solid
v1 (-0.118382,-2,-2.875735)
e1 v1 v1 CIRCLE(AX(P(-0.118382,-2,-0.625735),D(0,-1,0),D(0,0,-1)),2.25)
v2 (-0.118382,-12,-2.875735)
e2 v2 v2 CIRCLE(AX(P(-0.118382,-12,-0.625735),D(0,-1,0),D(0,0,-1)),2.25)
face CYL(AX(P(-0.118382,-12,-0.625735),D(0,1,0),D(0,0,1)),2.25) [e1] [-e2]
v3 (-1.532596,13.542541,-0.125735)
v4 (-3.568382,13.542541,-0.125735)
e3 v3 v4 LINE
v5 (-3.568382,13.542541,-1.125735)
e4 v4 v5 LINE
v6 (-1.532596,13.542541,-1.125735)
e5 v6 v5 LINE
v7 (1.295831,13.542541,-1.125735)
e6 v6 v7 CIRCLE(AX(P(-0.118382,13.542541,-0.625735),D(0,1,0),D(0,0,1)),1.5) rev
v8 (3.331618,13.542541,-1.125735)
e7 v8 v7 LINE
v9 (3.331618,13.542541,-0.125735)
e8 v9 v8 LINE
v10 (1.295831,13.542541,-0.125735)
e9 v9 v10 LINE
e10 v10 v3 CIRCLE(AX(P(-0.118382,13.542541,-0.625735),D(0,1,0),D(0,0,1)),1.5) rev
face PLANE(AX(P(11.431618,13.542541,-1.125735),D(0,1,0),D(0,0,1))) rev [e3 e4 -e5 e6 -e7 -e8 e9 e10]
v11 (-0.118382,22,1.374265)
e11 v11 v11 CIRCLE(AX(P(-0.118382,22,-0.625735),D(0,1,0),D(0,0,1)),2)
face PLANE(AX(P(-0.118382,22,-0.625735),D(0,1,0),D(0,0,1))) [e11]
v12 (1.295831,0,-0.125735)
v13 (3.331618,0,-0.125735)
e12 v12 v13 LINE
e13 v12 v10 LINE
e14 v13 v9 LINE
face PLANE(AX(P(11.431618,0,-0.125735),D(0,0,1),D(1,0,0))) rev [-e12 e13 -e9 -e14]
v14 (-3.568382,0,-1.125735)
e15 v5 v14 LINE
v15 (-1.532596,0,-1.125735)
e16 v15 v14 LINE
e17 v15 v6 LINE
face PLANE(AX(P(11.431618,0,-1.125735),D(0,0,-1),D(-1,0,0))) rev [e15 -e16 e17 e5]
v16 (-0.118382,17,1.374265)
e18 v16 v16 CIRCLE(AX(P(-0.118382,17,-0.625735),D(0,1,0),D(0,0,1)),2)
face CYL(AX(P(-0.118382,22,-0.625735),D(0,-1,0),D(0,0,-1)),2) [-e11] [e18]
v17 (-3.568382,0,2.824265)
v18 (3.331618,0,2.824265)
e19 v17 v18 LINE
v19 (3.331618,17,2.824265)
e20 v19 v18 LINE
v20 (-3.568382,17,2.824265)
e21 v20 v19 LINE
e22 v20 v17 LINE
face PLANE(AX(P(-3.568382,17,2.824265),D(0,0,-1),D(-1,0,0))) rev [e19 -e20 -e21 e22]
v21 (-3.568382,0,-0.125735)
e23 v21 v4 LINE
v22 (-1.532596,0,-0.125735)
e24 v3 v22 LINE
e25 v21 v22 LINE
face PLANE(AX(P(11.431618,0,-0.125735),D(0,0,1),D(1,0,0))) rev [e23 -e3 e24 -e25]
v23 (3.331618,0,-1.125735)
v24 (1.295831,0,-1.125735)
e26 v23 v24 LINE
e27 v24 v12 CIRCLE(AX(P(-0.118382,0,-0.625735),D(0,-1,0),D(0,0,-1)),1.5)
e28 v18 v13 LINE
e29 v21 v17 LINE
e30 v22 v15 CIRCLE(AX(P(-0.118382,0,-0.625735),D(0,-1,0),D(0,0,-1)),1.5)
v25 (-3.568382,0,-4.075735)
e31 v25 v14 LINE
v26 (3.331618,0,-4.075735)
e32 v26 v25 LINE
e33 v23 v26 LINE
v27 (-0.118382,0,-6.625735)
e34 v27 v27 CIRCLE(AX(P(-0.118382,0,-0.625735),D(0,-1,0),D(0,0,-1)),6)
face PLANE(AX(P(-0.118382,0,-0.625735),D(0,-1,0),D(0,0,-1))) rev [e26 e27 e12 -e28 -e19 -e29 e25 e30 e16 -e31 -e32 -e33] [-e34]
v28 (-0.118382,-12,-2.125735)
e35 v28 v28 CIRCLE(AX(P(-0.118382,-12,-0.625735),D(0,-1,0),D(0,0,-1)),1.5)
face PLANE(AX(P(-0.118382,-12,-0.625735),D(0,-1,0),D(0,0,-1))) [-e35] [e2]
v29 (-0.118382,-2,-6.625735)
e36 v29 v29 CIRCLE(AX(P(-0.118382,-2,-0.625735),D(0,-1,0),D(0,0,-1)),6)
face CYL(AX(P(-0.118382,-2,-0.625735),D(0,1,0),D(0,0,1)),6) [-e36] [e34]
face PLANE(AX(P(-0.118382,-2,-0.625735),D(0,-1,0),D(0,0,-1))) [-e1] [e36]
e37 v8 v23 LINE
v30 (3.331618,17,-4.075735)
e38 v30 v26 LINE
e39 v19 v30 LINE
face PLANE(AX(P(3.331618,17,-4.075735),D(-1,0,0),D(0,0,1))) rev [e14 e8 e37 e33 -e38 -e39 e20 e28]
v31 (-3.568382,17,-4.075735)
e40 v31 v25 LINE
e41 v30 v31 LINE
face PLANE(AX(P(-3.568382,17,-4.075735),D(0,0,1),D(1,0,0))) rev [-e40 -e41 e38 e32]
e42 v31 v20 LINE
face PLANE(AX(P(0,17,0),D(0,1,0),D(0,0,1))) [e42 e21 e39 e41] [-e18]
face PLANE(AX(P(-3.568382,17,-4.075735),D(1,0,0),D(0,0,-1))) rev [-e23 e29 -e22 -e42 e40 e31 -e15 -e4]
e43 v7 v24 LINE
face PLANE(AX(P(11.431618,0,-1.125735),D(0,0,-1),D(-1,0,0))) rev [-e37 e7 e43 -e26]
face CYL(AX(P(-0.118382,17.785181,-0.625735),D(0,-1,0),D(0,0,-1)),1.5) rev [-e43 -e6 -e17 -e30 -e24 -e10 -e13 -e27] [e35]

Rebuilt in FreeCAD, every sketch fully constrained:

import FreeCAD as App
import Part
import Sketcher
from FreeCAD import Vector
Q = App.Units.Quantity

doc = App.newDocument("Part")
body = doc.addObject("PartDesign::Body", "Body")

# Sketch on XZ plane
sketch1 = body.newObject("Sketcher::SketchObject", "Sketch")
sketch1.AttachmentSupport = (doc.getObject("XZ_Plane"), [""])
sketch1.MapMode = "FlatFace"
sketch1.addGeometry(Part.LineSegment(Vector(-4, -4, 0), Vector(-4, 3, 0)), False)
sketch1.addGeometry(Part.LineSegment(Vector(-4, 3, 0), Vector(3, 3, 0)), False)
sketch1.addGeometry(Part.LineSegment(Vector(3, 3, 0), Vector(3, -4, 0)), False)
sketch1.addGeometry(Part.LineSegment(Vector(3, -4, 0), Vector(-4, -4, 0)), False)
sketch1.addConstraint(Sketcher.Constraint("Coincident", 0, 2, 1, 1))
sketch1.addConstraint(Sketcher.Constraint("Coincident", 1, 2, 2, 1))
sketch1.addConstraint(Sketcher.Constraint("Coincident", 2, 2, 3, 1))
sketch1.addConstraint(Sketcher.Constraint("Coincident", 3, 2, 0, 1))
sketch1.addConstraint(Sketcher.Constraint("Vertical", 0))
sketch1.addConstraint(Sketcher.Constraint("Horizontal", 1))
sketch1.addConstraint(Sketcher.Constraint("Vertical", 2))
sketch1.addConstraint(Sketcher.Constraint("Horizontal", 3))
sketch1.addConstraint(Sketcher.Constraint("Equal", 3, 0))
sketch1.addConstraint(Sketcher.Constraint("DistanceX", 1, 1, 1, 2, Q("6.9 mm")))
sketch1.addConstraint(Sketcher.Constraint("DistanceX", 0, 2, -1, 1, Q("3.568382 mm")))
sketch1.addConstraint(Sketcher.Constraint("DistanceY", -1, 1, 0, 2, Q("2.824265 mm")))
pad1 = body.newObject("PartDesign::Pad", "Pad")
pad1.Profile = sketch1
pad1.Length = 17
pad1.Reversed = True

# Sketch on XZ plane
sketch2 = body.newObject("Sketcher::SketchObject", "Sketch001")
sketch2.AttachmentSupport = (doc.getObject("XZ_Plane"), [""])
sketch2.MapMode = "FlatFace"
sketch2.AttachmentOffset = App.Placement(Vector(0, 0, -17), App.Rotation())
sketch2.addGeometry(Part.Circle(Vector(-0.1, -0.6, 0), Vector(0, 0, 1), 2), False)
sketch2.addConstraint(Sketcher.Constraint("Diameter", 0, Q("4 mm")))
sketch2.addConstraint(Sketcher.Constraint("DistanceX", 0, 3, -1, 1, Q("0.118382 mm")))
sketch2.addConstraint(Sketcher.Constraint("DistanceY", 0, 3, -1, 1, Q("0.625735 mm")))
pad2 = body.newObject("PartDesign::Pad", "Pad001")
pad2.Profile = sketch2
pad2.Length = 5
pad2.Reversed = True

# Sketch on YZ plane
sketch3 = body.newObject("Sketcher::SketchObject", "Sketch002")
sketch3.AttachmentSupport = (doc.getObject("YZ_Plane"), [""])
sketch3.MapMode = "FlatFace"
sketch3.AttachmentOffset = App.Placement(Vector(0, 0, -3.568382), App.Rotation())
sketch3.addGeometry(Part.LineSegment(Vector(13.5, -1.1, 0), Vector(0, -1.1, 0)), False)
sketch3.addGeometry(Part.LineSegment(Vector(0, -1.1, 0), Vector(0, -0.1, 0)), False)
sketch3.addGeometry(Part.LineSegment(Vector(0, -0.1, 0), Vector(13.5, -0.1, 0)), False)
sketch3.addGeometry(Part.LineSegment(Vector(13.5, -0.1, 0), Vector(13.5, -1.1, 0)), False)
sketch3.addConstraint(Sketcher.Constraint("Coincident", 0, 2, 1, 1))
sketch3.addConstraint(Sketcher.Constraint("Coincident", 1, 2, 2, 1))
sketch3.addConstraint(Sketcher.Constraint("Coincident", 2, 2, 3, 1))
sketch3.addConstraint(Sketcher.Constraint("Coincident", 3, 2, 0, 1))
sketch3.addConstraint(Sketcher.Constraint("Horizontal", 0))
sketch3.addConstraint(Sketcher.Constraint("Vertical", 1))
sketch3.addConstraint(Sketcher.Constraint("Horizontal", 2))
sketch3.addConstraint(Sketcher.Constraint("Vertical", 3))
sketch3.addConstraint(Sketcher.Constraint("PointOnObject", 0, 2, -2))
sketch3.addConstraint(Sketcher.Constraint("DistanceY", 1, 1, 1, 2, Q("1 mm")))
sketch3.addConstraint(Sketcher.Constraint("DistanceX", 0, 2, 0, 1, Q("13.542541 mm")))
sketch3.addConstraint(Sketcher.Constraint("DistanceY", 0, 2, -1, 1, Q("1.125735 mm")))
pocket1 = body.newObject("PartDesign::Pocket", "Pocket")
pocket1.Profile = sketch3
pocket1.Length = 15
pocket1.Reversed = True

# Sketch on XZ plane
sketch4 = body.newObject("Sketcher::SketchObject", "Sketch003")
sketch4.AttachmentSupport = (doc.getObject("XZ_Plane"), [""])
sketch4.MapMode = "FlatFace"
sketch4.addGeometry(Part.Circle(Vector(0, -1, 0), Vector(0, 0, 1), 6), False)
sketch4.addConstraint(Sketcher.Constraint("Diameter", 0, Q("12 mm")))
sketch4.addConstraint(Sketcher.Constraint("DistanceX", 0, 3, -1, 1, Q("0.118382 mm")))
sketch4.addConstraint(Sketcher.Constraint("DistanceY", 0, 3, -1, 1, Q("0.625735 mm")))
pad3 = body.newObject("PartDesign::Pad", "Pad002")
pad3.Profile = sketch4
pad3.Length = 2

# Sketch on XZ plane
sketch5 = body.newObject("Sketcher::SketchObject", "Sketch004")
sketch5.AttachmentSupport = (doc.getObject("XZ_Plane"), [""])
sketch5.MapMode = "FlatFace"
sketch5.AttachmentOffset = App.Placement(Vector(0, 0, 2), App.Rotation())
sketch5.addGeometry(Part.Circle(Vector(-0.1, -0.6, 0), Vector(0, 0, 1), 2.2), False)
sketch5.addConstraint(Sketcher.Constraint("Diameter", 0, Q("4.5 mm")))
sketch5.addConstraint(Sketcher.Constraint("DistanceX", 0, 3, -1, 1, Q("0.118382 mm")))
sketch5.addConstraint(Sketcher.Constraint("DistanceY", 0, 3, -1, 1, Q("0.625735 mm")))
pad4 = body.newObject("PartDesign::Pad", "Pad003")
pad4.Profile = sketch5
pad4.Length = 10

# Sketch on XZ plane
sketch6 = body.newObject("Sketcher::SketchObject", "Sketch005")
sketch6.AttachmentSupport = (doc.getObject("XZ_Plane"), [""])
sketch6.MapMode = "FlatFace"
sketch6.AttachmentOffset = App.Placement(Vector(0, 0, 12), App.Rotation())
sketch6.addGeometry(Part.Circle(Vector(-0.1, -0.6, 0), Vector(0, 0, 1), 1.5), False)
sketch6.addConstraint(Sketcher.Constraint("Diameter", 0, Q("3 mm")))
sketch6.addConstraint(Sketcher.Constraint("DistanceX", 0, 3, -1, 1, Q("0.118382 mm")))
sketch6.addConstraint(Sketcher.Constraint("DistanceY", 0, 3, -1, 1, Q("0.625735 mm")))
pocket2 = body.newObject("PartDesign::Pocket", "Pocket001")
pocket2.Profile = sketch6
pocket2.Length = 25.542541

doc.recompute()
